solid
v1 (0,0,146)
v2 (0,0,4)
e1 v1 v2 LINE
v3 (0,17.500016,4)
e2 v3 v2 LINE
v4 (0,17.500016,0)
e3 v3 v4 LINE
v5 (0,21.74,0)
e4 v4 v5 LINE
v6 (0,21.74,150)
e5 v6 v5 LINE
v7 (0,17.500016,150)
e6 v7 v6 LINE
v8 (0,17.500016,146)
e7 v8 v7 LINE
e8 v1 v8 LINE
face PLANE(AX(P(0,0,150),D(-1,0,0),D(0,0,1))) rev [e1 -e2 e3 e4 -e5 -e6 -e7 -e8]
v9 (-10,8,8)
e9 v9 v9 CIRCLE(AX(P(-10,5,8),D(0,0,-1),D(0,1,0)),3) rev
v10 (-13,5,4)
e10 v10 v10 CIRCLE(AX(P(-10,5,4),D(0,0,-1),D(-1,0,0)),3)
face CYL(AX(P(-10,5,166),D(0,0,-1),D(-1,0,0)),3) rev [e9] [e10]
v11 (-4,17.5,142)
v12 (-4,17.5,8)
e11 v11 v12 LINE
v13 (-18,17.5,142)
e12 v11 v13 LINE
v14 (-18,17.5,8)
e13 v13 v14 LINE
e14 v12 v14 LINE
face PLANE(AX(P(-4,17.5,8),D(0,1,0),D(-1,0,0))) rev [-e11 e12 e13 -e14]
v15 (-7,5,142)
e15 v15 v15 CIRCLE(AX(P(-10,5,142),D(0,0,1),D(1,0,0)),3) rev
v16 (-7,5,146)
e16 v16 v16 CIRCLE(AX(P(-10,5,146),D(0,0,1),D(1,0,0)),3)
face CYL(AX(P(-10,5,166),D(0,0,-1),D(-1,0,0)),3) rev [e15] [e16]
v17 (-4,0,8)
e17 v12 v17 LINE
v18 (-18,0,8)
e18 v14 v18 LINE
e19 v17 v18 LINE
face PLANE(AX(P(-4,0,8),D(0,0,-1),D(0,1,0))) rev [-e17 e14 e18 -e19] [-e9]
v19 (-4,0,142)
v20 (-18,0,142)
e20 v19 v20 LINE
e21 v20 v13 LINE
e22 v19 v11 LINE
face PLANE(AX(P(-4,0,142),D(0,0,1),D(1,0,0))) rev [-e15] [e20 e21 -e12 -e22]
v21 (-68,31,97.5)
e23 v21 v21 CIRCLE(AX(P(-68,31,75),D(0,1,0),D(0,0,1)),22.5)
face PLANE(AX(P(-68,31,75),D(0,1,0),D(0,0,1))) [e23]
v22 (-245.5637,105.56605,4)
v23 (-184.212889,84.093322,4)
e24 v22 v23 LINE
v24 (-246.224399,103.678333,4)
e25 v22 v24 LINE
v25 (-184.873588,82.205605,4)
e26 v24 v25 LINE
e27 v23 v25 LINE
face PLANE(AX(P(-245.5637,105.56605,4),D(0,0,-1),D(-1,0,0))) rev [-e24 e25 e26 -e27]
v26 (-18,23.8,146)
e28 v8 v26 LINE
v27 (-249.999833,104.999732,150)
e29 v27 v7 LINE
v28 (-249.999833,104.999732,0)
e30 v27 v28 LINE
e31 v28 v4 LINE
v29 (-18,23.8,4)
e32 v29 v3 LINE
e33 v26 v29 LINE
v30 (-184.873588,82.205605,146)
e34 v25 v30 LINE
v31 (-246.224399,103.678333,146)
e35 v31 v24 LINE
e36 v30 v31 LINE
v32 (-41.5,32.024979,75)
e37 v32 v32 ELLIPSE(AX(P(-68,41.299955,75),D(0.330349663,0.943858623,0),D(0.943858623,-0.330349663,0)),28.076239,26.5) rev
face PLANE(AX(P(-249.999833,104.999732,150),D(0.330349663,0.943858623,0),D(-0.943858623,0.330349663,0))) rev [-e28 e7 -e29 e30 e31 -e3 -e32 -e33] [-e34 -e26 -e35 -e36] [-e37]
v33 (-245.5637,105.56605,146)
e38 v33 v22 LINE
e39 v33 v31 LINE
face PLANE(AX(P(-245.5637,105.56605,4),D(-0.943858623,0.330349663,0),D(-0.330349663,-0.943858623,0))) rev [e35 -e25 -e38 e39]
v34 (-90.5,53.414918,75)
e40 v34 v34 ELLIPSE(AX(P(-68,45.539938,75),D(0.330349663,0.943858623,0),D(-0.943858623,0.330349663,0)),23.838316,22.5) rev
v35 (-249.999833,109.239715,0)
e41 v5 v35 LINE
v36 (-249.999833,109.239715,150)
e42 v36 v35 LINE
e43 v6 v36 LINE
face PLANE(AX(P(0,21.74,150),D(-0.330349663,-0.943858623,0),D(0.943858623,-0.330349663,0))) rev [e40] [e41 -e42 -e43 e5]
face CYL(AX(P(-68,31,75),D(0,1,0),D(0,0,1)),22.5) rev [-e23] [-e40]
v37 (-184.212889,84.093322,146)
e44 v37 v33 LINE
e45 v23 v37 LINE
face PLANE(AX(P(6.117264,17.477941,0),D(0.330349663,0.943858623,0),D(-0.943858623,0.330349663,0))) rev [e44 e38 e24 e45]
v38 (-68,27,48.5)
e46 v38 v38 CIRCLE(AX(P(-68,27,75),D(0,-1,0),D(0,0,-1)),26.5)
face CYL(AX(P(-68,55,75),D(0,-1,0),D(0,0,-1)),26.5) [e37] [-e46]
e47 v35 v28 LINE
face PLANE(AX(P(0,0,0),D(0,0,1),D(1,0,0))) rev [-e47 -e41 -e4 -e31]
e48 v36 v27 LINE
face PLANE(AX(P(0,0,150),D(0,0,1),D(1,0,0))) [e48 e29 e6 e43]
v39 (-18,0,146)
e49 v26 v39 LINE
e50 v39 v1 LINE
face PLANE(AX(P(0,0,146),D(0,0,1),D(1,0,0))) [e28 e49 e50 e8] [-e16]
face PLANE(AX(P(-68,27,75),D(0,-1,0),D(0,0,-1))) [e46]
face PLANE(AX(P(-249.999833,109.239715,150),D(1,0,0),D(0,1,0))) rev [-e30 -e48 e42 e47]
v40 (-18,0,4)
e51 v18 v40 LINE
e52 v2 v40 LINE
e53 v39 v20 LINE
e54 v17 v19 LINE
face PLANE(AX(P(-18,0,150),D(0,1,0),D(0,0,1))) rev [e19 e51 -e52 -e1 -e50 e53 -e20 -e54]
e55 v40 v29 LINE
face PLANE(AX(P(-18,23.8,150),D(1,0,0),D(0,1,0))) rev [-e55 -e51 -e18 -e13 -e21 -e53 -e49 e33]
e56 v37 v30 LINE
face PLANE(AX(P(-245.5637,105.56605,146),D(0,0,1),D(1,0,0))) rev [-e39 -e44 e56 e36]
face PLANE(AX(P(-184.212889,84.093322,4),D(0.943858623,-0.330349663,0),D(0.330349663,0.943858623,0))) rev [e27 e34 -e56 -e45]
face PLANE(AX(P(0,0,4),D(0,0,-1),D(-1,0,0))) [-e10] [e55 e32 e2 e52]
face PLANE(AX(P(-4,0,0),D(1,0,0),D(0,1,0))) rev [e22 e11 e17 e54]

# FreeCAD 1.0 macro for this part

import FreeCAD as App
import Part
import Sketcher

V = App.Vector
Q = App.Units.Quantity

doc = App.newDocument("Part")
body = doc.addObject("PartDesign::Body", "Body")

sketch1 = body.newObject("Sketcher::SketchObject", "Sketch")
sketch1.AttachmentSupport = (doc.getObject("XY_Plane"), [""])
sketch1.MapMode = "FlatFace"
sketch1.addGeometry(Part.LineSegment(V(0, 0, 0), V(0, 21.74, 0)), False)
sketch1.addGeometry(Part.LineSegment(V(0, 21.74, 0), V(-249.999833, 109.239715, 0)), False)
sketch1.addGeometry(Part.LineSegment(V(-249.999833, 109.239715, 0), V(-249.999833, 104.999732, 0)), False)
sketch1.addGeometry(Part.LineSegment(V(-249.999833, 104.999732, 0), V(-18, 23.8, 0)), False)
sketch1.addGeometry(Part.LineSegment(V(-18, 23.8, 0), V(-18, 0, 0)), False)
sketch1.addGeometry(Part.LineSegment(V(-18, 0, 0), V(0, 0, 0)), False)
sketch1.addConstraint(Sketcher.Constraint("Coincident", 0, 2, 1, 1))
sketch1.addConstraint(Sketcher.Constraint("Coincident", 1, 2, 2, 1))
sketch1.addConstraint(Sketcher.Constraint("Coincident", 2, 2, 3, 1))
sketch1.addConstraint(Sketcher.Constraint("Coincident", 3, 2, 4, 1))
sketch1.addConstraint(Sketcher.Constraint("Coincident", 4, 2, 5, 1))
sketch1.addConstraint(Sketcher.Constraint("Coincident", 5, 2, 0, 1))
sketch1.addConstraint(Sketcher.Constraint("Vertical", 0))
sketch1.addConstraint(Sketcher.Constraint("Vertical", 2))
sketch1.addConstraint(Sketcher.Constraint("Vertical", 4))
sketch1.addConstraint(Sketcher.Constraint("Horizontal", 5))
sketch1.addConstraint(Sketcher.Constraint("Coincident", 5, 2, -1, 1))
sketch1.addConstraint(Sketcher.Constraint("Parallel", 1, 3))
sketch1.addConstraint(Sketcher.Constraint("DistanceX", 5, 1, 5, 2, 18.0))
sketch1.addConstraint(Sketcher.Constraint("DistanceY", 4, 2, 4, 1, 23.8))
sketch1.addConstraint(Sketcher.Constraint("DistanceY", 0, 1, 0, 2, 21.74))
sketch1.addConstraint(Sketcher.Constraint("Angle", 1, Q("160.71 deg")))
sketch1.addConstraint(Sketcher.Constraint("Distance", 1, 264.87))
pad1 = body.newObject("PartDesign::Pad", "Pad")
pad1.Profile = sketch1
pad1.Length = 150

sketch2 = body.newObject("Sketcher::SketchObject", "Sketch001")
sketch2.AttachmentSupport = (doc.getObject("XY_Plane"), [""])
sketch2.MapMode = "FlatFace"
sketch2.AttachmentOffset = App.Placement(V(0, 0, 150), App.Rotation())
sketch2.addGeometry(Part.LineSegment(V(0, 17.500016, 0), V(-18, 23.8, 0)), False)
sketch2.addGeometry(Part.LineSegment(V(-18, 23.8, 0), V(-18, 0, 0)), False)
sketch2.addGeometry(Part.LineSegment(V(-18, 0, 0), V(0, 0, 0)), False)
sketch2.addGeometry(Part.LineSegment(V(0, 0, 0), V(0, 17.500016, 0)), False)
sketch2.addConstraint(Sketcher.Constraint("Coincident", 0, 2, 1, 1))
sketch2.addConstraint(Sketcher.Constraint("Coincident", 1, 2, 2, 1))
sketch2.addConstraint(Sketcher.Constraint("Coincident", 2, 2, 3, 1))
sketch2.addConstraint(Sketcher.Constraint("Coincident", 3, 2, 0, 1))
sketch2.addConstraint(Sketcher.Constraint("Vertical", 1))
sketch2.addConstraint(Sketcher.Constraint("Horizontal", 2))
sketch2.addConstraint(Sketcher.Constraint("Vertical", 3))
sketch2.addConstraint(Sketcher.Constraint("Coincident", 2, 2, -1, 1))
sketch2.addConstraint(Sketcher.Constraint("DistanceX", 2, 1, 2, 2, 18.0))
sketch2.addConstraint(Sketcher.Constraint("DistanceY", 1, 2, 1, 1, 23.8))
sketch2.addConstraint(Sketcher.Constraint("Angle", 0, Q("160.71 deg")))
pocket1 = body.newObject("PartDesign::Pocket", "Pocket")
pocket1.Profile = sketch2
pocket1.Length = 4

sketch3 = body.newObject("Sketcher::SketchObject", "Sketch002")
sketch3.AttachmentSupport = (doc.getObject("XY_Plane"), [""])
sketch3.MapMode = "FlatFace"
sketch3.addGeometry(Part.LineSegment(V(-18, 0, 0), V(-18, 23.8, 0)), False)
sketch3.addGeometry(Part.LineSegment(V(-18, 23.8, 0), V(0, 17.500016, 0)), False)
sketch3.addGeometry(Part.LineSegment(V(0, 17.500016, 0), V(0, 0, 0)), False)
sketch3.addGeometry(Part.LineSegment(V(0, 0, 0), V(-18, 0, 0)), False)
sketch3.addConstraint(Sketcher.Constraint("Coincident", 0, 2, 1, 1))
sketch3.addConstraint(Sketcher.Constraint("Coincident", 1, 2, 2, 1))
sketch3.addConstraint(Sketcher.Constraint("Coincident", 2, 2, 3, 1))
sketch3.addConstraint(Sketcher.Constraint("Coincident", 3, 2, 0, 1))
sketch3.addConstraint(Sketcher.Constraint("Vertical", 0))
sketch3.addConstraint(Sketcher.Constraint("Vertical", 2))
sketch3.addConstraint(Sketcher.Constraint("Horizontal", 3))
sketch3.addConstraint(Sketcher.Constraint("Coincident", 2, 2, -1, 1))
sketch3.addConstraint(Sketcher.Constraint("DistanceX", 3, 2, 3, 1, 18.0))
sketch3.addConstraint(Sketcher.Constraint("DistanceY", 0, 1, 0, 2, 23.8))
sketch3.addConstraint(Sketcher.Constraint("Angle", 1, Q("-19.29 deg")))
pocket2 = body.newObject("PartDesign::Pocket", "Pocket001")
pocket2.Profile = sketch3
pocket2.Length = 4
pocket2.Reversed = True

sketch4 = body.newObject("Sketcher::SketchObject", "Sketch003")
sketch4.AttachmentSupport = (doc.getObject("XY_Plane"), [""])
sketch4.MapMode = "FlatFace"
sketch4.AttachmentOffset = App.Placement(V(0, 0, 4), App.Rotation())
sketch4.addGeometry(Part.Circle(V(-10, 5, 0), V(0, 0, 1), 3), False)
sketch4.addConstraint(Sketcher.Constraint("Diameter", 0, 6.0))
sketch4.addConstraint(Sketcher.Constraint("DistanceX", 0, 3, -1, 1, 10.0))
sketch4.addConstraint(Sketcher.Constraint("DistanceY", -1, 1, 0, 3, 5.0))
pocket3 = body.newObject("PartDesign::Pocket", "Pocket002")
pocket3.Profile = sketch4
pocket3.Length = 162
pocket3.Reversed = True

sketch5 = body.newObject("Sketcher::SketchObject", "Sketch004")
sketch5.AttachmentSupport = (doc.getObject("YZ_Plane"), [""])
sketch5.MapMode = "FlatFace"
sketch5.AttachmentOffset = App.Placement(V(0, 0, -18), App.Rotation())
sketch5.addGeometry(Part.LineSegment(V(17.5, 8, 0), V(0, 8, 0)), False)
sketch5.addGeometry(Part.LineSegment(V(0, 8, 0), V(0, 142, 0)), False)
sketch5.addGeometry(Part.LineSegment(V(0, 142, 0), V(17.5, 142, 0)), False)
sketch5.addGeometry(Part.LineSegment(V(17.5, 142, 0), V(17.5, 8, 0)), False)
sketch5.addConstraint(Sketcher.Constraint("Coincident", 0, 2, 1, 1))
sketch5.addConstraint(Sketcher.Constraint("Coincident", 1, 2, 2, 1))
sketch5.addConstraint(Sketcher.Constraint("Coincident", 2, 2, 3, 1))
sketch5.addConstraint(Sketcher.Constraint("Coincident", 3, 2, 0, 1))
sketch5.addConstraint(Sketcher.Constraint("Horizontal", 0))
sketch5.addConstraint(Sketcher.Constraint("Vertical", 1))
sketch5.addConstraint(Sketcher.Constraint("Horizontal", 2))
sketch5.addConstraint(Sketcher.Constraint("Vertical", 3))
sketch5.addConstraint(Sketcher.Constraint("PointOnObject", 0, 2, -2))
sketch5.addConstraint(Sketcher.Constraint("DistanceY", 1, 1, 1, 2, 134.0))
sketch5.addConstraint(Sketcher.Constraint("DistanceX", 0, 2, 0, 1, 17.5))
sketch5.addConstraint(Sketcher.Constraint("DistanceY", -1, 1, 0, 2, 8.0))
pocket4 = body.newObject("PartDesign::Pocket", "Pocket003")
pocket4.Profile = sketch5
pocket4.Length = 14
pocket4.Reversed = True

sketch6 = body.newObject("Sketcher::SketchObject", "Sketch005")
sketch6.AttachmentSupport = (doc.getObject("XZ_Plane"), [""])
sketch6.MapMode = "FlatFace"
sketch6.addGeometry(Part.Circle(V(-68, 75, 0), V(0, 0, 1), 22.5), False)
sketch6.addConstraint(Sketcher.Constraint("Diameter", 0, 45.0))
sketch6.addConstraint(Sketcher.Constraint("DistanceX", 0, 3, -1, 1, 68.0))
sketch6.addConstraint(Sketcher.Constraint("DistanceY", -1, 1, 0, 3, 75.0))
pocket5 = body.newObject("PartDesign::Pocket", "Pocket004")
pocket5.Profile = sketch6
pocket5.Length = 83

sketch7 = body.newObject("Sketcher::SketchObject", "Sketch006")
sketch7.AttachmentSupport = (doc.getObject("XZ_Plane"), [""])
sketch7.MapMode = "FlatFace"
sketch7.addGeometry(Part.Circle(V(-68, 75, 0), V(0, 0, 1), 26.5), False)
sketch7.addConstraint(Sketcher.Constraint("Diameter", 0, 53.0))
sketch7.addConstraint(Sketcher.Constraint("DistanceX", 0, 3, -1, 1, 68.0))
sketch7.addConstraint(Sketcher.Constraint("DistanceY", -1, 1, 0, 3, 75.0))
pad2 = body.newObject("PartDesign::Pad", "Pad001")
pad2.Profile = sketch7
pad2.Length = 55
pad2.Reversed = True

sketch8 = body.newObject("Sketcher::SketchObject", "Sketch007")
sketch8.AttachmentSupport = (doc.getObject("XZ_Plane"), [""])
sketch8.MapMode = "FlatFace"
sketch8.addGeometry(Part.Circle(V(-68, 75, 0), V(0, 0, 1), 26.5), False)
sketch8.addConstraint(Sketcher.Constraint("Diameter", 0, 53.0))
sketch8.addConstraint(Sketcher.Constraint("DistanceX", 0, 3, -1, 1, 68.0))
sketch8.addConstraint(Sketcher.Constraint("DistanceY", -1, 1, 0, 3, 75.0))
pocket6 = body.newObject("PartDesign::Pocket", "Pocket005")
pocket6.Profile = sketch8
pocket6.Length = 27

sketch9 = body.newObject("Sketcher::SketchObject", "Sketch008")
sketch9.AttachmentSupport = (doc.getObject("XZ_Plane"), [""])
sketch9.MapMode = "FlatFace"
sketch9.AttachmentOffset = App.Placement(V(0, 0, -55), App.Rotation())
sketch9.addGeometry(Part.Circle(V(-68, 75, 0), V(0, 0, 1), 22.5), False)
sketch9.addConstraint(Sketcher.Constraint("Diameter", 0, 45.0))
sketch9.addConstraint(Sketcher.Constraint("DistanceX", 0, 3, -1, 1, 68.0))
sketch9.addConstraint(Sketcher.Constraint("DistanceY", -1, 1, 0, 3, 75.0))
pocket7 = body.newObject("PartDesign::Pocket", "Pocket006")
pocket7.Profile = sketch9
pocket7.Length = 24
pocket7.Reversed = True

sketch10 = body.newObject("Sketcher::SketchObject", "Sketch009")
sketch10.Placement = App.Placement(V(5.456564, 15.590224, 0), App.Rotation(V(0.943858623, -0.330349663, 0), V(0, 0, 1), V(-0.330349663, -0.943858623, 0), "ZXY"))
sketch10.addGeometry(Part.LineSegment(V(-266.651125, 146, 0), V(-266.651125, 4, 0)), False)
sketch10.addGeometry(Part.LineSegment(V(-266.651125, 4, 0), V(-201.651125, 4, 0)), False)
sketch10.addGeometry(Part.LineSegment(V(-201.651125, 4, 0), V(-201.651125, 146, 0)), False)
sketch10.addGeometry(Part.LineSegment(V(-201.651125, 146, 0), V(-266.651125, 146, 0)), False)
sketch10.addConstraint(Sketcher.Constraint("Coincident", 0, 2, 1, 1))
sketch10.addConstraint(Sketcher.Constraint("Coincident", 1, 2, 2, 1))
sketch10.addConstraint(Sketcher.Constraint("Coincident", 2, 2, 3, 1))
sketch10.addConstraint(Sketcher.Constraint("Coincident", 3, 2, 0, 1))
sketch10.addConstraint(Sketcher.Constraint("Vertical", 0))
sketch10.addConstraint(Sketcher.Constraint("Horizontal", 1))
sketch10.addConstraint(Sketcher.Constraint("Vertical", 2))
sketch10.addConstraint(Sketcher.Constraint("Horizontal", 3))
sketch10.addConstraint(Sketcher.Constraint("DistanceX", 1, 1, 1, 2, 65.0))
sketch10.addConstraint(Sketcher.Constraint("DistanceY", 0, 2, 0, 1, 142.0))
sketch10.addConstraint(Sketcher.Constraint("DistanceY", -1, 1, 0, 2, 4.0))
sketch10.addConstraint(Sketcher.Constraint("DistanceX", 0, 2, -1, 1, 266.651125))
pocket8 = body.newObject("PartDesign::Pocket", "Pocket007")
pocket8.Profile = sketch10
pocket8.Length = 2

sketch11 = body.newObject("Sketcher::SketchObject", "Sketch010")
sketch11.Placement = App.Placement(V(6.778605, 19.367494, 0), App.Rotation(V(0.943858623, -0.330349663, 0), V(0, 0, -1), V(0.330349663, 0.943858623, 0), "ZXY"))
sketch11.addGeometry(Part.LineSegment(V(-112.811163, -47.353034, 0), V(-112.811163, -103.996993, 0)), False)
sketch11.addGeometry(Part.LineSegment(V(-112.811163, -103.996993, 0), V(-39.762123, -103.996993, 0)), False)
sketch11.addGeometry(Part.LineSegment(V(-39.762123, -103.996993, 0), V(-39.762123, -47.353034, 0)), False)
sketch11.addGeometry(Part.LineSegment(V(-39.762123, -47.353034, 0), V(-112.811163, -47.353034, 0)), False)
sketch11.addConstraint(Sketcher.Constraint("Coincident", 0, 2, 1, 1))
sketch11.addConstraint(Sketcher.Constraint("Coincident", 1, 2, 2, 1))
sketch11.addConstraint(Sketcher.Constraint("Coincident", 2, 2, 3, 1))
sketch11.addConstraint(Sketcher.Constraint("Coincident", 3, 2, 0, 1))
sketch11.addConstraint(Sketcher.Constraint("Vertical", 0))
sketch11.addConstraint(Sketcher.Constraint("Horizontal", 1))
sketch11.addConstraint(Sketcher.Constraint("Vertical", 2))
sketch11.addConstraint(Sketcher.Constraint("Horizontal", 3))
sketch11.addConstraint(Sketcher.Constraint("DistanceX", 1, 1, 1, 2, 73.049041))
sketch11.addConstraint(Sketcher.Constraint("DistanceY", 0, 2, 0, 1, 56.643959))
sketch11.addConstraint(Sketcher.Constraint("DistanceX", 0, 2, -1, 1, 112.811163))
sketch11.addConstraint(Sketcher.Constraint("DistanceY", 0, 2, -1, 1, 103.996993))
pocket9 = body.newObject("PartDesign::Pocket", "Pocket008")
pocket9.Profile = sketch11
pocket9.Length = 22
pocket9.Reversed = True

doc.recompute()
